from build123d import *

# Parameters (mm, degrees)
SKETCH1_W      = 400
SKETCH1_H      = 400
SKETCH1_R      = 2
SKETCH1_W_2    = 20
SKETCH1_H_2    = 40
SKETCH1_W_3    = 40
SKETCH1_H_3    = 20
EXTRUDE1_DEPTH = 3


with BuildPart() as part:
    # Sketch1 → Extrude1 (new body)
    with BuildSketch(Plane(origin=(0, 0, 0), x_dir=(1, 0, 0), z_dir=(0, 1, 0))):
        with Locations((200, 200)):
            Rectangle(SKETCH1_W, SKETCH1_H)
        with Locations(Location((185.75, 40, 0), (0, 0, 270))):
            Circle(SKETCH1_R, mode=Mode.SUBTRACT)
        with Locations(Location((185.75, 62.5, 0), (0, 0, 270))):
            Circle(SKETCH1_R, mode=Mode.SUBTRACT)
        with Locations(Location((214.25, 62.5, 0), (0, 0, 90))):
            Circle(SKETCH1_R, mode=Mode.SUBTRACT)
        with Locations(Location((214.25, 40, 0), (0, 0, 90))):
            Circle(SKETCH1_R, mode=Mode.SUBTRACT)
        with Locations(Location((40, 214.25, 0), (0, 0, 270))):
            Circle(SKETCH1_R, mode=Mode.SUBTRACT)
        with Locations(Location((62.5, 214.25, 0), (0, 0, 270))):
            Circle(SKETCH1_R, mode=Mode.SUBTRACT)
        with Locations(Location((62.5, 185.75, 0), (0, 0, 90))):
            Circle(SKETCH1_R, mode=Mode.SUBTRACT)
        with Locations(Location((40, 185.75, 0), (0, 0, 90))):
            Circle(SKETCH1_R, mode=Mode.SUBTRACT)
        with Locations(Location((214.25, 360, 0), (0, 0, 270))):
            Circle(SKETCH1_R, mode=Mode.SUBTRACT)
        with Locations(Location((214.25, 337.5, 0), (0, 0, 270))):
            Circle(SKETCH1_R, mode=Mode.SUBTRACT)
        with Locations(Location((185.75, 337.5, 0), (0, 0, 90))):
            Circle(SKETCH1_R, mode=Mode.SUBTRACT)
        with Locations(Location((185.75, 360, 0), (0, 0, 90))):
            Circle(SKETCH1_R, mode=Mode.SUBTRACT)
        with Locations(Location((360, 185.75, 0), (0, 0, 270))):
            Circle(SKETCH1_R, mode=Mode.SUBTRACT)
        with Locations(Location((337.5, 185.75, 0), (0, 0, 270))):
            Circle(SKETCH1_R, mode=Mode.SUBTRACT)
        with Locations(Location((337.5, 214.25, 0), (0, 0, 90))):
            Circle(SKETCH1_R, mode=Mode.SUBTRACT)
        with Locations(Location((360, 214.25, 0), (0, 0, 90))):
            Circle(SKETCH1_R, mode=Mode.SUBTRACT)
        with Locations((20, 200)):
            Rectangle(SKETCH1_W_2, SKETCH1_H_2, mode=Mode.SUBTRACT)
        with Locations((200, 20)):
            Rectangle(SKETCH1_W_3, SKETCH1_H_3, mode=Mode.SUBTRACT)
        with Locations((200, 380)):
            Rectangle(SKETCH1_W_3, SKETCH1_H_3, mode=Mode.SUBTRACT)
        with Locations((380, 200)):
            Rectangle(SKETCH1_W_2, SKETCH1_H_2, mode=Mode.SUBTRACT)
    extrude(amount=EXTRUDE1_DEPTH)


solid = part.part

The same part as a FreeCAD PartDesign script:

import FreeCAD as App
import Part
import Sketcher
from FreeCAD import Vector
Q = App.Units.Quantity

doc = App.newDocument("Part")
body = doc.addObject("PartDesign::Body", "Body")

# Sketch on XZ plane
sketch1 = body.newObject("Sketcher::SketchObject", "Sketch")
sketch1.AttachmentSupport = (doc.getObject("XZ_Plane"), [""])
sketch1.MapMode = "FlatFace"
sketch1.addGeometry(Part.LineSegment(Vector(0, -400, 0), Vector(0, 0, 0)), False)
sketch1.addGeometry(Part.LineSegment(Vector(0, 0, 0), Vector(400, 0, 0)), False)
sketch1.addGeometry(Part.LineSegment(Vector(400, 0, 0), Vector(400, -400, 0)), False)
sketch1.addGeometry(Part.LineSegment(Vector(400, -400, 0), Vector(0, -400, 0)), False)
sketch1.addGeometry(Part.Circle(Vector(185.8, -40, 0), Vector(0, 0, 1), 2), False)
sketch1.addGeometry(Part.Circle(Vector(185.8, -62.5, 0), Vector(0, 0, 1), 2), False)
sketch1.addGeometry(Part.Circle(Vector(40, -185.8, 0), Vector(0, 0, 1), 2), False)
sketch1.addGeometry(Part.Circle(Vector(62.5, -185.8, 0), Vector(0, 0, 1), 2), False)
sketch1.addGeometry(Part.LineSegment(Vector(220, -10, 0), Vector(180, -10, 0)), False)
sketch1.addGeometry(Part.LineSegment(Vector(180, -10, 0), Vector(180, -30, 0)), False)
sketch1.addGeometry(Part.LineSegment(Vector(180, -30, 0), Vector(220, -30, 0)), False)
sketch1.addGeometry(Part.LineSegment(Vector(220, -30, 0), Vector(220, -10, 0)), False)
sketch1.addGeometry(Part.Circle(Vector(214.2, -40, 0), Vector(0, 0, 1), 2), False)
sketch1.addGeometry(Part.Circle(Vector(214.2, -62.5, 0), Vector(0, 0, 1), 2), False)
sketch1.addGeometry(Part.Circle(Vector(337.5, -185.8, 0), Vector(0, 0, 1), 2), False)
sketch1.addGeometry(Part.Circle(Vector(360, -185.8, 0), Vector(0, 0, 1), 2), False)
sketch1.addGeometry(Part.LineSegment(Vector(30, -180, 0), Vector(10, -180, 0)), False)
sketch1.addGeometry(Part.LineSegment(Vector(10, -180, 0), Vector(10, -220, 0)), False)
sketch1.addGeometry(Part.LineSegment(Vector(10, -220, 0), Vector(30, -220, 0)), False)
sketch1.addGeometry(Part.LineSegment(Vector(30, -220, 0), Vector(30, -180, 0)), False)
sketch1.addGeometry(Part.Circle(Vector(40, -214.2, 0), Vector(0, 0, 1), 2), False)
sketch1.addGeometry(Part.Circle(Vector(62.5, -214.2, 0), Vector(0, 0, 1), 2), False)
sketch1.addGeometry(Part.Circle(Vector(185.8, -337.5, 0), Vector(0, 0, 1), 2), False)
sketch1.addGeometry(Part.Circle(Vector(185.8, -360, 0), Vector(0, 0, 1), 2), False)
sketch1.addGeometry(Part.Circle(Vector(337.5, -214.2, 0), Vector(0, 0, 1), 2), False)
sketch1.addGeometry(Part.Circle(Vector(360, -214.2, 0), Vector(0, 0, 1), 2), False)
sketch1.addGeometry(Part.LineSegment(Vector(390, -180, 0), Vector(370, -180, 0)), False)
sketch1.addGeometry(Part.LineSegment(Vector(370, -180, 0), Vector(370, -220, 0)), False)
sketch1.addGeometry(Part.LineSegment(Vector(370, -220, 0), Vector(390, -220, 0)), False)
sketch1.addGeometry(Part.LineSegment(Vector(390, -220, 0), Vector(390, -180, 0)), False)
sketch1.addGeometry(Part.Circle(Vector(214.2, -337.5, 0), Vector(0, 0, 1), 2), False)
sketch1.addGeometry(Part.Circle(Vector(214.2, -360, 0), Vector(0, 0, 1), 2), False)
sketch1.addGeometry(Part.LineSegment(Vector(220, -370, 0), Vector(180, -370, 0)), False)
sketch1.addGeometry(Part.LineSegment(Vector(180, -370, 0), Vector(180, -390, 0)), False)
sketch1.addGeometry(Part.LineSegment(Vector(180, -390, 0), Vector(220, -390, 0)), False)
sketch1.addGeometry(Part.LineSegment(Vector(220, -390, 0), Vector(220, -370, 0)), False)
sketch1.addConstraint(Sketcher.Constraint("Coincident", 0, 2, 1, 1))
sketch1.addConstraint(Sketcher.Constraint("Coincident", 1, 2, 2, 1))
sketch1.addConstraint(Sketcher.Constraint("Coincident", 2, 2, 3, 1))
sketch1.addConstraint(Sketcher.Constraint("Coincident", 3, 2, 0, 1))
sketch1.addConstraint(Sketcher.Constraint("Coincident", 8, 2, 9, 1))
sketch1.addConstraint(Sketcher.Constraint("Coincident", 9, 2, 10, 1))
sketch1.addConstraint(Sketcher.Constraint("Coincident", 10, 2, 11, 1))
sketch1.addConstraint(Sketcher.Constraint("Coincident", 11, 2, 8, 1))
sketch1.addConstraint(Sketcher.Constraint("Coincident", 16, 2, 17, 1))
sketch1.addConstraint(Sketcher.Constraint("Coincident", 17, 2, 18, 1))
sketch1.addConstraint(Sketcher.Constraint("Coincident", 18, 2, 19, 1))
sketch1.addConstraint(Sketcher.Constraint("Coincident", 19, 2, 16, 1))
sketch1.addConstraint(Sketcher.Constraint("Coincident", 26, 2, 27, 1))
sketch1.addConstraint(Sketcher.Constraint("Coincident", 27, 2, 28, 1))
sketch1.addConstraint(Sketcher.Constraint("Coincident", 28, 2, 29, 1))
sketch1.addConstraint(Sketcher.Constraint("Coincident", 29, 2, 26, 1))
sketch1.addConstraint(Sketcher.Constraint("Coincident", 32, 2, 33, 1))
sketch1.addConstraint(Sketcher.Constraint("Coincident", 33, 2, 34, 1))
sketch1.addConstraint(Sketcher.Constraint("Coincident", 34, 2, 35, 1))
sketch1.addConstraint(Sketcher.Constraint("Coincident", 35, 2, 32, 1))
sketch1.addConstraint(Sketcher.Constraint("Vertical", 0))
sketch1.addConstraint(Sketcher.Constraint("Horizontal", 1))
sketch1.addConstraint(Sketcher.Constraint("Vertical", 2))
sketch1.addConstraint(Sketcher.Constraint("Horizontal", 3))
sketch1.addConstraint(Sketcher.Constraint("Horizontal", 8))
sketch1.addConstraint(Sketcher.Constraint("Vertical", 9))
sketch1.addConstraint(Sketcher.Constraint("Horizontal", 10))
sketch1.addConstraint(Sketcher.Constraint("Vertical", 11))
sketch1.addConstraint(Sketcher.Constraint("Horizontal", 16))
sketch1.addConstraint(Sketcher.Constraint("Vertical", 17))
sketch1.addConstraint(Sketcher.Constraint("Horizontal", 18))
sketch1.addConstraint(Sketcher.Constraint("Vertical", 19))
sketch1.addConstraint(Sketcher.Constraint("Horizontal", 26))
sketch1.addConstraint(Sketcher.Constraint("Vertical", 27))
sketch1.addConstraint(Sketcher.Constraint("Horizontal", 28))
sketch1.addConstraint(Sketcher.Constraint("Vertical", 29))
sketch1.addConstraint(Sketcher.Constraint("Horizontal", 32))
sketch1.addConstraint(Sketcher.Constraint("Vertical", 33))
sketch1.addConstraint(Sketcher.Constraint("Horizontal", 34))
sketch1.addConstraint(Sketcher.Constraint("Vertical", 35))
sketch1.addConstraint(Sketcher.Constraint("Coincident", 0, 2, -1, 1))
sketch1.addConstraint(Sketcher.Constraint("Equal", 4, 5))
sketch1.addConstraint(Sketcher.Constraint("Equal", 5, 6))
sketch1.addConstraint(Sketcher.Constraint("Equal", 6, 7))
sketch1.addConstraint(Sketcher.Constraint("Equal", 7, 12))
sketch1.addConstraint(Sketcher.Constraint("Equal", 12, 13))
sketch1.addConstraint(Sketcher.Constraint("Equal", 13, 14))
sketch1.addConstraint(Sketcher.Constraint("Equal", 14, 15))
sketch1.addConstraint(Sketcher.Constraint("Equal", 15, 20))
sketch1.addConstraint(Sketcher.Constraint("Equal", 20, 21))
sketch1.addConstraint(Sketcher.Constraint("Equal", 21, 22))
sketch1.addConstraint(Sketcher.Constraint("Equal", 22, 23))
sketch1.addConstraint(Sketcher.Constraint("Equal", 23, 24))
sketch1.addConstraint(Sketcher.Constraint("Equal", 24, 25))
sketch1.addConstraint(Sketcher.Constraint("Equal", 25, 30))
sketch1.addConstraint(Sketcher.Constraint("Equal", 30, 31))
sketch1.addConstraint(Sketcher.Constraint("Horizontal", 6, 3, 7, 3))
sketch1.addConstraint(Sketcher.Constraint("Horizontal", 4, 3, 12, 3))
sketch1.addConstraint(Sketcher.Constraint("Horizontal", 5, 3, 13, 3))
sketch1.addConstraint(Sketcher.Constraint("Horizontal", 7, 3, 14, 3))
sketch1.addConstraint(Sketcher.Constraint("Horizontal", 14, 3, 15, 3))
sketch1.addConstraint(Sketcher.Constraint("Horizontal", 20, 3, 21, 3))
sketch1.addConstraint(Sketcher.Constraint("Horizontal", 21, 3, 24, 3))
sketch1.addConstraint(Sketcher.Constraint("Horizontal", 24, 3, 25, 3))
sketch1.addConstraint(Sketcher.Constraint("Horizontal", 22, 3, 30, 3))
sketch1.addConstraint(Sketcher.Constraint("Horizontal", 23, 3, 31, 3))
sketch1.addConstraint(Sketcher.Constraint("Horizontal", 19, 2, 26, 2))
sketch1.addConstraint(Sketcher.Constraint("Horizontal", 18, 2, 27, 2))
sketch1.addConstraint(Sketcher.Constraint("Vertical", 4, 3, 5, 3))
sketch1.addConstraint(Sketcher.Constraint("Vertical", 12, 3, 13, 3))
sketch1.addConstraint(Sketcher.Constraint("Vertical", 6, 3, 20, 3))
sketch1.addConstraint(Sketcher.Constraint("Vertical", 7, 3, 21, 3))
sketch1.addConstraint(Sketcher.Constraint("Vertical", 5, 3, 22, 3))
sketch1.addConstraint(Sketcher.Constraint("Vertical", 22, 3, 23, 3))
sketch1.addConstraint(Sketcher.Constraint("Vertical", 14, 3, 24, 3))
sketch1.addConstraint(Sketcher.Constraint("Vertical", 15, 3, 25, 3))
sketch1.addConstraint(Sketcher.Constraint("Vertical", 13, 3, 30, 3))
sketch1.addConstraint(Sketcher.Constraint("Vertical", 30, 3, 31, 3))
sketch1.addConstraint(Sketcher.Constraint("Vertical", 9, 2, 32, 2))
sketch1.addConstraint(Sketcher.Constraint("Vertical", 11, 2, 34, 2))
sketch1.addConstraint(Sketcher.Constraint("Equal", 18, 26))
sketch1.addConstraint(Sketcher.Constraint("Equal", 3, 0))
sketch1.addConstraint(Sketcher.Constraint("Equal", 28, 9))
sketch1.addConstraint(Sketcher.Constraint("Equal", 34, 17))
sketch1.addConstraint(Sketcher.Constraint("Equal", 11, 33))
sketch1.addConstraint(Sketcher.Constraint("Diameter", 4, Q("4 mm")))
sketch1.addConstraint(Sketcher.Constraint("DistanceX", 1, 1, 1, 2, Q("400 mm")))
sketch1.addConstraint(Sketcher.Constraint("DistanceX", 8, 2, 8, 1, Q("40 mm")))
sketch1.addConstraint(Sketcher.Constraint("DistanceX", 16, 2, 16, 1, Q("20 mm")))
sketch1.addConstraint(Sketcher.Constraint("DistanceY", 4, 3, -1, 1, Q("40 mm")))
sketch1.addConstraint(Sketcher.Constraint("DistanceX", -1, 1, 6, 3, Q("40 mm")))
sketch1.addConstraint(Sketcher.Constraint("DistanceX", -1, 1, 15, 3, Q("360 mm")))
sketch1.addConstraint(Sketcher.Constraint("DistanceY", 23, 3, -1, 1, Q("360 mm")))
sketch1.addConstraint(Sketcher.Constraint("DistanceX", -1, 1, 8, 2, Q("180 mm")))
sketch1.addConstraint(Sketcher.Constraint("DistanceY", 8, 2, -1, 1, Q("10 mm")))
sketch1.addConstraint(Sketcher.Constraint("DistanceX", -1, 1, 16, 2, Q("10 mm")))
sketch1.addConstraint(Sketcher.Constraint("DistanceY", 16, 2, -1, 1, Q("180 mm")))
sketch1.addConstraint(Sketcher.Constraint("DistanceX", -1, 1, 26, 2, Q("370 mm")))
sketch1.addConstraint(Sketcher.Constraint("DistanceY", 32, 2, -1, 1, Q("370 mm")))
sketch1.addConstraint(Sketcher.Constraint("DistanceX", 7, 3, 14, 3, Q("275 mm")))
sketch1.addConstraint(Sketcher.Constraint("DistanceY", 5, 3, -1, 1, Q("62.5 mm")))
sketch1.addConstraint(Sketcher.Constraint("DistanceX", -1, 1, 7, 3, Q("62.5 mm")))
sketch1.addConstraint(Sketcher.Constraint("DistanceY", 22, 3, -1, 1, Q("337.5 mm")))
sketch1.addConstraint(Sketcher.Constraint("DistanceX", 4, 3, 12, 3, Q("28.5 mm")))
sketch1.addConstraint(Sketcher.Constraint("DistanceY", 20, 3, 6, 3, Q("28.5 mm")))
sketch1.addConstraint(Sketcher.Constraint("DistanceX", -1, 1, 4, 3, Q("185.75 mm")))
sketch1.addConstraint(Sketcher.Constraint("DistanceY", 6, 3, -1, 1, Q("185.75 mm")))
pad1 = body.newObject("PartDesign::Pad", "Pad")
pad1.Profile = sketch1
pad1.Length = 3
pad1.Reversed = True

doc.recompute()
